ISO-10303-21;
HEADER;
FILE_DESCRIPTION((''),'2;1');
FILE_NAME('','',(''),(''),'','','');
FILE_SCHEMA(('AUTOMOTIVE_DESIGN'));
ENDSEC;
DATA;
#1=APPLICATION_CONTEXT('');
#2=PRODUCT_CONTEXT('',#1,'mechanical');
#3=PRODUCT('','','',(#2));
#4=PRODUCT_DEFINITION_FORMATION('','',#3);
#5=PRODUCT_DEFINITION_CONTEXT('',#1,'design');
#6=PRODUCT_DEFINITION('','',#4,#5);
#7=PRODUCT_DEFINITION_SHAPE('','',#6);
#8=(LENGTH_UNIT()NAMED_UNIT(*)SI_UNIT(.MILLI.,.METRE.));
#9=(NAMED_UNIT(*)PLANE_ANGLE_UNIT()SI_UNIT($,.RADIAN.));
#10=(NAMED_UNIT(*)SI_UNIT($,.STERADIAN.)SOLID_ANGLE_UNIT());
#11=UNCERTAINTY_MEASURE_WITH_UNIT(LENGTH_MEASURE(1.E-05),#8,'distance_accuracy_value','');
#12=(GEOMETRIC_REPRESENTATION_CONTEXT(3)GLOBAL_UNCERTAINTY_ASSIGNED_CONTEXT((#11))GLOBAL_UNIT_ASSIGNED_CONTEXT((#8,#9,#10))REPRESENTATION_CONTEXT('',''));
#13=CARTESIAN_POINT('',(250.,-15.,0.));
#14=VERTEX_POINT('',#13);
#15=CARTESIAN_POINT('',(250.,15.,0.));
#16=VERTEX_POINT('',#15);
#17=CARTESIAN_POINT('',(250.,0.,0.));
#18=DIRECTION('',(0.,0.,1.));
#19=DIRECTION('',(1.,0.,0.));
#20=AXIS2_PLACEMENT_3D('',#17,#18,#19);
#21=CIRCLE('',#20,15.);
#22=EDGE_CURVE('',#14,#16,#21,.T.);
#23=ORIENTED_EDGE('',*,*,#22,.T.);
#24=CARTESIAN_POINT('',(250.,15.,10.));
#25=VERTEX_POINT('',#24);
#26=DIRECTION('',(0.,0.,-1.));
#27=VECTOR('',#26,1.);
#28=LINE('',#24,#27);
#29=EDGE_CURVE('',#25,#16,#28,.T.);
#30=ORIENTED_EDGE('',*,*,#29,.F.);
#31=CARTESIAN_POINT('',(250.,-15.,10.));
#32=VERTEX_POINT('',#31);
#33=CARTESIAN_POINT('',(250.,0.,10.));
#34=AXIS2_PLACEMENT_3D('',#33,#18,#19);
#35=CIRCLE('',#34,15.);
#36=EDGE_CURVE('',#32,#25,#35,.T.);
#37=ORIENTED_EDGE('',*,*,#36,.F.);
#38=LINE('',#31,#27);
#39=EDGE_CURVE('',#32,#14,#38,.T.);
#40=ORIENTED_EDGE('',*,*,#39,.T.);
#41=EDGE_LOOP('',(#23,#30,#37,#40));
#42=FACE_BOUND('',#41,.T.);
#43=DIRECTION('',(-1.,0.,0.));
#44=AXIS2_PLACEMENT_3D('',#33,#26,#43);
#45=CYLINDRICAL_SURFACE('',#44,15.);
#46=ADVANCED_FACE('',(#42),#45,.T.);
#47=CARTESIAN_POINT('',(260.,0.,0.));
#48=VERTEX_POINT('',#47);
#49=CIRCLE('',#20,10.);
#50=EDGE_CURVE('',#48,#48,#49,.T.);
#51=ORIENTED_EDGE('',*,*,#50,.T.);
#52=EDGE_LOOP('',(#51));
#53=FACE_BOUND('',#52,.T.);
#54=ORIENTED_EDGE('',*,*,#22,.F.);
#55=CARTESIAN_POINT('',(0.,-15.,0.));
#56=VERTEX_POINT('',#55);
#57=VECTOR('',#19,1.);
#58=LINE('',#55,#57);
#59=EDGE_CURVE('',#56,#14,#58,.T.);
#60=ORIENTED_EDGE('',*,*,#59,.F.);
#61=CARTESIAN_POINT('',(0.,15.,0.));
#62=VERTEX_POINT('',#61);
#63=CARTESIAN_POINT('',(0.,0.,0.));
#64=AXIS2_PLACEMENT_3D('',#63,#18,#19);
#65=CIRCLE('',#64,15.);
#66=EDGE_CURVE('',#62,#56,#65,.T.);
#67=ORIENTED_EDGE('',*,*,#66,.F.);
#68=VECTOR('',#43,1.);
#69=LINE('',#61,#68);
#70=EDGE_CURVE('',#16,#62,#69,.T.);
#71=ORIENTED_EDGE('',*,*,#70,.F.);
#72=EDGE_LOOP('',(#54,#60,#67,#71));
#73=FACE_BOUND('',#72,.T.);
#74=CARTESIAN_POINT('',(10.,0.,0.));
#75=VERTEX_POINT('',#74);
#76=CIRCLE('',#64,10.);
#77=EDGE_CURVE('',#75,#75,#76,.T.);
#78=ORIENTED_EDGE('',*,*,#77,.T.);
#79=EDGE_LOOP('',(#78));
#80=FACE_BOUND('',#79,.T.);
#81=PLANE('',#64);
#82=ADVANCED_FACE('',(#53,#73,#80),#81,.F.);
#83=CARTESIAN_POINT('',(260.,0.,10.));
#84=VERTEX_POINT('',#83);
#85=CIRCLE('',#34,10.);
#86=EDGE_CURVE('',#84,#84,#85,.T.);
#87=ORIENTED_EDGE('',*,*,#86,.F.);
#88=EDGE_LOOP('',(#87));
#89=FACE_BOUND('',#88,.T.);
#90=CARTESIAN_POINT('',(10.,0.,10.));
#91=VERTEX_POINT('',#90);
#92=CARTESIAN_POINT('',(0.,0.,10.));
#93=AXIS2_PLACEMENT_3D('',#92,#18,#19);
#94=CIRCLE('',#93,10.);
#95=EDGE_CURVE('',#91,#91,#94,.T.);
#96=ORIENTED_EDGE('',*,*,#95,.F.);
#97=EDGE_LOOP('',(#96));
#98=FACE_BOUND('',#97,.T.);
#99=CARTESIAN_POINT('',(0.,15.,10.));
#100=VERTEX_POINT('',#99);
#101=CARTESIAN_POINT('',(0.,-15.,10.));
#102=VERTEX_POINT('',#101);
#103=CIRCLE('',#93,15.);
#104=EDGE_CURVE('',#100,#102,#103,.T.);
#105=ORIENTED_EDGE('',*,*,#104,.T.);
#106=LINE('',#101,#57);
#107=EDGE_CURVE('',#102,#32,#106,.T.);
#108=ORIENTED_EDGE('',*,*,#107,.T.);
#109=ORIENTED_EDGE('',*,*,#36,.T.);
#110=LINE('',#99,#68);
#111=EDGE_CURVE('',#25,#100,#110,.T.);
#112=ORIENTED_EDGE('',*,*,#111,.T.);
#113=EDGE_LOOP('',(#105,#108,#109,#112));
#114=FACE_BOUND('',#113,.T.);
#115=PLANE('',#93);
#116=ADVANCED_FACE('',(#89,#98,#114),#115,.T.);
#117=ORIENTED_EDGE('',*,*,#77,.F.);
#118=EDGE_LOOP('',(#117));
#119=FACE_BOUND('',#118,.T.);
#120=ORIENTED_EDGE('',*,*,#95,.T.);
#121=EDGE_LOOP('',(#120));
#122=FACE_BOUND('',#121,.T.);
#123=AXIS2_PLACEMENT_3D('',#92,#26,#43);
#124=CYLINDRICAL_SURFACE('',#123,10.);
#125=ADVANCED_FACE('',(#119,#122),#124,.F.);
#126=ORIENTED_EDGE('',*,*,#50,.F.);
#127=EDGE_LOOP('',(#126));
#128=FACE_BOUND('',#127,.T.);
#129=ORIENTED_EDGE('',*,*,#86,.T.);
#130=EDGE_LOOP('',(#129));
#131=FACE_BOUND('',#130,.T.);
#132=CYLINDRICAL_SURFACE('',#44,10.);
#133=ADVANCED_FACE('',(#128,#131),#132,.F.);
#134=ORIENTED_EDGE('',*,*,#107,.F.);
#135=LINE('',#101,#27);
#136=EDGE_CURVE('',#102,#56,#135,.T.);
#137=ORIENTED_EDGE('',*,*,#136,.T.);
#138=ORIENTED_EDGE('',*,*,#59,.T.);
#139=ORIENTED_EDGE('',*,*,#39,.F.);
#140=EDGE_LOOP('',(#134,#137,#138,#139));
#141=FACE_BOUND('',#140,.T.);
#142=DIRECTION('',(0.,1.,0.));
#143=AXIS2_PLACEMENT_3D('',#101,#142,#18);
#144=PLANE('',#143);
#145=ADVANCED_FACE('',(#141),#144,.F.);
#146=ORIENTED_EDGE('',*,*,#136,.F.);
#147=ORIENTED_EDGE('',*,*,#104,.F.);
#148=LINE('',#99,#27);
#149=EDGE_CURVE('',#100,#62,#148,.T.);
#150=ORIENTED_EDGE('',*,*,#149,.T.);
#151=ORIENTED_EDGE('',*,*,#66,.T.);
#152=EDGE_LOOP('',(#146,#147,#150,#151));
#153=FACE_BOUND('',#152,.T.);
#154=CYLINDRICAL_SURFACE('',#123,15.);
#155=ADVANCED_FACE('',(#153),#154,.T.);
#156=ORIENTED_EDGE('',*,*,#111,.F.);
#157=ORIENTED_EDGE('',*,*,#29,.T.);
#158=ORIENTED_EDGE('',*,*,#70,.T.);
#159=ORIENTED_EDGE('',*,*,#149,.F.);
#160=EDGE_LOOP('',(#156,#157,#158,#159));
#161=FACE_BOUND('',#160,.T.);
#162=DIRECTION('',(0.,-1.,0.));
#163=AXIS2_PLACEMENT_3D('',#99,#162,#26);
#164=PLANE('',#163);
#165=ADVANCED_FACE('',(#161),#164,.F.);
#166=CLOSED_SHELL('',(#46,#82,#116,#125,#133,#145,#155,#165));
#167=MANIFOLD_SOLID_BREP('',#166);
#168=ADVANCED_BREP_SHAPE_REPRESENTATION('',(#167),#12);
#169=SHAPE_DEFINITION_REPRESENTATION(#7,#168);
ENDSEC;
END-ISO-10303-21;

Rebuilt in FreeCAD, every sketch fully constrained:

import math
import FreeCAD as App
import Part
import Sketcher

doc = App.newDocument("Part")
body = doc.addObject("PartDesign::Body", "Body")

# Sketch on XY plane
sketch1 = doc.addObject("Sketcher::SketchObject", "Sketch")
body.addObject(sketch1)
sketch1.AttachmentSupport = (doc.XY_Plane, [""])
sketch1.MapMode = "FlatFace"
sketch1.addGeometry(Part.LineSegment(App.Vector(250, 15, 0), App.Vector(0, 15, 0)), False)
sketch1.addGeometry(Part.ArcOfCircle(Part.Circle(App.Vector(0, 0, 0), App.Vector(0, 0, 1), 15), math.radians(90), math.radians(270)), False)
sketch1.addGeometry(Part.LineSegment(App.Vector(0, -15, 0), App.Vector(250, -15, 0)), False)
sketch1.addGeometry(Part.ArcOfCircle(Part.Circle(App.Vector(250, 0, 0), App.Vector(0, 0, 1), 15), math.radians(-90), math.radians(90)), False)
sketch1.addGeometry(Part.Circle(App.Vector(250, 0, 0), App.Vector(0, 0, 1), 10), False)
sketch1.addGeometry(Part.Circle(App.Vector(0, 0, 0), App.Vector(0, 0, 1), 10), False)
sketch1.addConstraint(Sketcher.Constraint("Tangent", 0, 2, 1, 1))
sketch1.addConstraint(Sketcher.Constraint("Tangent", 1, 2, 2, 1))
sketch1.addConstraint(Sketcher.Constraint("Tangent", 2, 2, 3, 1))
sketch1.addConstraint(Sketcher.Constraint("Tangent", 3, 2, 0, 1))
sketch1.addConstraint(Sketcher.Constraint("Horizontal", 0))
sketch1.addConstraint(Sketcher.Constraint("Horizontal", 2))
sketch1.addConstraint(Sketcher.Constraint("Coincident", 1, 3, -1, 1))
sketch1.addConstraint(Sketcher.Constraint("Coincident", 5, 3, -1, 1))
sketch1.addConstraint(Sketcher.Constraint("Coincident", 4, 3, 3, 3))
sketch1.addConstraint(Sketcher.Constraint("Equal", 4, 5))
sketch1.addConstraint(Sketcher.Constraint("Diameter", 4, 20.0))
sketch1.addConstraint(Sketcher.Constraint("Radius", 1, 15.0))
sketch1.addConstraint(Sketcher.Constraint("DistanceX", 0, 2, 0, 1, 250.0))
pad1 = doc.addObject("PartDesign::Pad", "Pad")
body.addObject(pad1)
pad1.Profile = sketch1
pad1.Length = 10

doc.recompute()
